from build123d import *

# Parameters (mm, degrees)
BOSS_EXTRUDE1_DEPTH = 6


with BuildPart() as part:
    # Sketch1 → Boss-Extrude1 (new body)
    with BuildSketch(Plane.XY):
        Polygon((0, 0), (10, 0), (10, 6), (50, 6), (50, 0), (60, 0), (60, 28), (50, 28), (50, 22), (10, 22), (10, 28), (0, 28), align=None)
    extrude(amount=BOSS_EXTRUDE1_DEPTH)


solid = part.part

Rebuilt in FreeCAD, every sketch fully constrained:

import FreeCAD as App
import Part
import Sketcher

V = App.Vector


def add_polygon(sketch, points):
    """Adds a closed chain of lines whose ends are joined by coincident constraints."""
    first, n = sketch.GeometryCount, len(points)
    for a, b in zip(points, points[1:] + points[:1]):
        sketch.addGeometry(Part.LineSegment(App.Vector(*a, 0), App.Vector(*b, 0)), False)
    for i in range(n):
        sketch.addConstraint(Sketcher.Constraint("Coincident", first + i, 2, first + (i + 1) % n, 1))

doc = App.newDocument("Part")
body = doc.addObject("PartDesign::Body", "Body")

sketch1 = body.newObject("Sketcher::SketchObject", "Sketch")
sketch1.AttachmentSupport = (doc.getObject("XY_Plane"), [""])
sketch1.MapMode = "FlatFace"
add_polygon(sketch1, [(0, 0), (10, 0), (10, 6), (50, 6), (50, 0), (60, 0), (60, 28), (50, 28), (50, 22), (10, 22), (10, 28), (0, 28)])
sketch1.addConstraint([
    Sketcher.Constraint("Horizontal", 0),
    Sketcher.Constraint("Vertical", 1),
    Sketcher.Constraint("Horizontal", 2),
    Sketcher.Constraint("Vertical", 3),
    Sketcher.Constraint("Horizontal", 4),
    Sketcher.Constraint("Vertical", 5),
    Sketcher.Constraint("Horizontal", 6),
    Sketcher.Constraint("Vertical", 7),
    Sketcher.Constraint("Horizontal", 8),
    Sketcher.Constraint("Vertical", 9),
    Sketcher.Constraint("Horizontal", 10),
    Sketcher.Constraint("Vertical", 11),
    Sketcher.Constraint("Coincident", 11, 2, -1, 1),
    Sketcher.Constraint("PointOnObject", 3, 2, -1),
    Sketcher.Constraint("Horizontal", 6, 2, 9, 2),
    Sketcher.Constraint("Vertical", 3, 2, 6, 2),
    Sketcher.Constraint("Vertical", 1, 2, 8, 2),
    Sketcher.Constraint("Equal", 0, 4),
    Sketcher.Constraint("Equal", 3, 7),
    Sketcher.Constraint("DistanceX", 0, 1, 0, 2, 10.0),
    Sketcher.Constraint("DistanceX", 2, 1, 2, 2, 40.0),
    Sketcher.Constraint("DistanceY", 1, 1, 1, 2, 6.0),
    Sketcher.Constraint("DistanceY", 5, 1, 5, 2, 28.0),
])
pad1 = body.newObject("PartDesign::Pad", "Pad")
pad1.Profile = sketch1
pad1.Length = 6

doc.recompute()
